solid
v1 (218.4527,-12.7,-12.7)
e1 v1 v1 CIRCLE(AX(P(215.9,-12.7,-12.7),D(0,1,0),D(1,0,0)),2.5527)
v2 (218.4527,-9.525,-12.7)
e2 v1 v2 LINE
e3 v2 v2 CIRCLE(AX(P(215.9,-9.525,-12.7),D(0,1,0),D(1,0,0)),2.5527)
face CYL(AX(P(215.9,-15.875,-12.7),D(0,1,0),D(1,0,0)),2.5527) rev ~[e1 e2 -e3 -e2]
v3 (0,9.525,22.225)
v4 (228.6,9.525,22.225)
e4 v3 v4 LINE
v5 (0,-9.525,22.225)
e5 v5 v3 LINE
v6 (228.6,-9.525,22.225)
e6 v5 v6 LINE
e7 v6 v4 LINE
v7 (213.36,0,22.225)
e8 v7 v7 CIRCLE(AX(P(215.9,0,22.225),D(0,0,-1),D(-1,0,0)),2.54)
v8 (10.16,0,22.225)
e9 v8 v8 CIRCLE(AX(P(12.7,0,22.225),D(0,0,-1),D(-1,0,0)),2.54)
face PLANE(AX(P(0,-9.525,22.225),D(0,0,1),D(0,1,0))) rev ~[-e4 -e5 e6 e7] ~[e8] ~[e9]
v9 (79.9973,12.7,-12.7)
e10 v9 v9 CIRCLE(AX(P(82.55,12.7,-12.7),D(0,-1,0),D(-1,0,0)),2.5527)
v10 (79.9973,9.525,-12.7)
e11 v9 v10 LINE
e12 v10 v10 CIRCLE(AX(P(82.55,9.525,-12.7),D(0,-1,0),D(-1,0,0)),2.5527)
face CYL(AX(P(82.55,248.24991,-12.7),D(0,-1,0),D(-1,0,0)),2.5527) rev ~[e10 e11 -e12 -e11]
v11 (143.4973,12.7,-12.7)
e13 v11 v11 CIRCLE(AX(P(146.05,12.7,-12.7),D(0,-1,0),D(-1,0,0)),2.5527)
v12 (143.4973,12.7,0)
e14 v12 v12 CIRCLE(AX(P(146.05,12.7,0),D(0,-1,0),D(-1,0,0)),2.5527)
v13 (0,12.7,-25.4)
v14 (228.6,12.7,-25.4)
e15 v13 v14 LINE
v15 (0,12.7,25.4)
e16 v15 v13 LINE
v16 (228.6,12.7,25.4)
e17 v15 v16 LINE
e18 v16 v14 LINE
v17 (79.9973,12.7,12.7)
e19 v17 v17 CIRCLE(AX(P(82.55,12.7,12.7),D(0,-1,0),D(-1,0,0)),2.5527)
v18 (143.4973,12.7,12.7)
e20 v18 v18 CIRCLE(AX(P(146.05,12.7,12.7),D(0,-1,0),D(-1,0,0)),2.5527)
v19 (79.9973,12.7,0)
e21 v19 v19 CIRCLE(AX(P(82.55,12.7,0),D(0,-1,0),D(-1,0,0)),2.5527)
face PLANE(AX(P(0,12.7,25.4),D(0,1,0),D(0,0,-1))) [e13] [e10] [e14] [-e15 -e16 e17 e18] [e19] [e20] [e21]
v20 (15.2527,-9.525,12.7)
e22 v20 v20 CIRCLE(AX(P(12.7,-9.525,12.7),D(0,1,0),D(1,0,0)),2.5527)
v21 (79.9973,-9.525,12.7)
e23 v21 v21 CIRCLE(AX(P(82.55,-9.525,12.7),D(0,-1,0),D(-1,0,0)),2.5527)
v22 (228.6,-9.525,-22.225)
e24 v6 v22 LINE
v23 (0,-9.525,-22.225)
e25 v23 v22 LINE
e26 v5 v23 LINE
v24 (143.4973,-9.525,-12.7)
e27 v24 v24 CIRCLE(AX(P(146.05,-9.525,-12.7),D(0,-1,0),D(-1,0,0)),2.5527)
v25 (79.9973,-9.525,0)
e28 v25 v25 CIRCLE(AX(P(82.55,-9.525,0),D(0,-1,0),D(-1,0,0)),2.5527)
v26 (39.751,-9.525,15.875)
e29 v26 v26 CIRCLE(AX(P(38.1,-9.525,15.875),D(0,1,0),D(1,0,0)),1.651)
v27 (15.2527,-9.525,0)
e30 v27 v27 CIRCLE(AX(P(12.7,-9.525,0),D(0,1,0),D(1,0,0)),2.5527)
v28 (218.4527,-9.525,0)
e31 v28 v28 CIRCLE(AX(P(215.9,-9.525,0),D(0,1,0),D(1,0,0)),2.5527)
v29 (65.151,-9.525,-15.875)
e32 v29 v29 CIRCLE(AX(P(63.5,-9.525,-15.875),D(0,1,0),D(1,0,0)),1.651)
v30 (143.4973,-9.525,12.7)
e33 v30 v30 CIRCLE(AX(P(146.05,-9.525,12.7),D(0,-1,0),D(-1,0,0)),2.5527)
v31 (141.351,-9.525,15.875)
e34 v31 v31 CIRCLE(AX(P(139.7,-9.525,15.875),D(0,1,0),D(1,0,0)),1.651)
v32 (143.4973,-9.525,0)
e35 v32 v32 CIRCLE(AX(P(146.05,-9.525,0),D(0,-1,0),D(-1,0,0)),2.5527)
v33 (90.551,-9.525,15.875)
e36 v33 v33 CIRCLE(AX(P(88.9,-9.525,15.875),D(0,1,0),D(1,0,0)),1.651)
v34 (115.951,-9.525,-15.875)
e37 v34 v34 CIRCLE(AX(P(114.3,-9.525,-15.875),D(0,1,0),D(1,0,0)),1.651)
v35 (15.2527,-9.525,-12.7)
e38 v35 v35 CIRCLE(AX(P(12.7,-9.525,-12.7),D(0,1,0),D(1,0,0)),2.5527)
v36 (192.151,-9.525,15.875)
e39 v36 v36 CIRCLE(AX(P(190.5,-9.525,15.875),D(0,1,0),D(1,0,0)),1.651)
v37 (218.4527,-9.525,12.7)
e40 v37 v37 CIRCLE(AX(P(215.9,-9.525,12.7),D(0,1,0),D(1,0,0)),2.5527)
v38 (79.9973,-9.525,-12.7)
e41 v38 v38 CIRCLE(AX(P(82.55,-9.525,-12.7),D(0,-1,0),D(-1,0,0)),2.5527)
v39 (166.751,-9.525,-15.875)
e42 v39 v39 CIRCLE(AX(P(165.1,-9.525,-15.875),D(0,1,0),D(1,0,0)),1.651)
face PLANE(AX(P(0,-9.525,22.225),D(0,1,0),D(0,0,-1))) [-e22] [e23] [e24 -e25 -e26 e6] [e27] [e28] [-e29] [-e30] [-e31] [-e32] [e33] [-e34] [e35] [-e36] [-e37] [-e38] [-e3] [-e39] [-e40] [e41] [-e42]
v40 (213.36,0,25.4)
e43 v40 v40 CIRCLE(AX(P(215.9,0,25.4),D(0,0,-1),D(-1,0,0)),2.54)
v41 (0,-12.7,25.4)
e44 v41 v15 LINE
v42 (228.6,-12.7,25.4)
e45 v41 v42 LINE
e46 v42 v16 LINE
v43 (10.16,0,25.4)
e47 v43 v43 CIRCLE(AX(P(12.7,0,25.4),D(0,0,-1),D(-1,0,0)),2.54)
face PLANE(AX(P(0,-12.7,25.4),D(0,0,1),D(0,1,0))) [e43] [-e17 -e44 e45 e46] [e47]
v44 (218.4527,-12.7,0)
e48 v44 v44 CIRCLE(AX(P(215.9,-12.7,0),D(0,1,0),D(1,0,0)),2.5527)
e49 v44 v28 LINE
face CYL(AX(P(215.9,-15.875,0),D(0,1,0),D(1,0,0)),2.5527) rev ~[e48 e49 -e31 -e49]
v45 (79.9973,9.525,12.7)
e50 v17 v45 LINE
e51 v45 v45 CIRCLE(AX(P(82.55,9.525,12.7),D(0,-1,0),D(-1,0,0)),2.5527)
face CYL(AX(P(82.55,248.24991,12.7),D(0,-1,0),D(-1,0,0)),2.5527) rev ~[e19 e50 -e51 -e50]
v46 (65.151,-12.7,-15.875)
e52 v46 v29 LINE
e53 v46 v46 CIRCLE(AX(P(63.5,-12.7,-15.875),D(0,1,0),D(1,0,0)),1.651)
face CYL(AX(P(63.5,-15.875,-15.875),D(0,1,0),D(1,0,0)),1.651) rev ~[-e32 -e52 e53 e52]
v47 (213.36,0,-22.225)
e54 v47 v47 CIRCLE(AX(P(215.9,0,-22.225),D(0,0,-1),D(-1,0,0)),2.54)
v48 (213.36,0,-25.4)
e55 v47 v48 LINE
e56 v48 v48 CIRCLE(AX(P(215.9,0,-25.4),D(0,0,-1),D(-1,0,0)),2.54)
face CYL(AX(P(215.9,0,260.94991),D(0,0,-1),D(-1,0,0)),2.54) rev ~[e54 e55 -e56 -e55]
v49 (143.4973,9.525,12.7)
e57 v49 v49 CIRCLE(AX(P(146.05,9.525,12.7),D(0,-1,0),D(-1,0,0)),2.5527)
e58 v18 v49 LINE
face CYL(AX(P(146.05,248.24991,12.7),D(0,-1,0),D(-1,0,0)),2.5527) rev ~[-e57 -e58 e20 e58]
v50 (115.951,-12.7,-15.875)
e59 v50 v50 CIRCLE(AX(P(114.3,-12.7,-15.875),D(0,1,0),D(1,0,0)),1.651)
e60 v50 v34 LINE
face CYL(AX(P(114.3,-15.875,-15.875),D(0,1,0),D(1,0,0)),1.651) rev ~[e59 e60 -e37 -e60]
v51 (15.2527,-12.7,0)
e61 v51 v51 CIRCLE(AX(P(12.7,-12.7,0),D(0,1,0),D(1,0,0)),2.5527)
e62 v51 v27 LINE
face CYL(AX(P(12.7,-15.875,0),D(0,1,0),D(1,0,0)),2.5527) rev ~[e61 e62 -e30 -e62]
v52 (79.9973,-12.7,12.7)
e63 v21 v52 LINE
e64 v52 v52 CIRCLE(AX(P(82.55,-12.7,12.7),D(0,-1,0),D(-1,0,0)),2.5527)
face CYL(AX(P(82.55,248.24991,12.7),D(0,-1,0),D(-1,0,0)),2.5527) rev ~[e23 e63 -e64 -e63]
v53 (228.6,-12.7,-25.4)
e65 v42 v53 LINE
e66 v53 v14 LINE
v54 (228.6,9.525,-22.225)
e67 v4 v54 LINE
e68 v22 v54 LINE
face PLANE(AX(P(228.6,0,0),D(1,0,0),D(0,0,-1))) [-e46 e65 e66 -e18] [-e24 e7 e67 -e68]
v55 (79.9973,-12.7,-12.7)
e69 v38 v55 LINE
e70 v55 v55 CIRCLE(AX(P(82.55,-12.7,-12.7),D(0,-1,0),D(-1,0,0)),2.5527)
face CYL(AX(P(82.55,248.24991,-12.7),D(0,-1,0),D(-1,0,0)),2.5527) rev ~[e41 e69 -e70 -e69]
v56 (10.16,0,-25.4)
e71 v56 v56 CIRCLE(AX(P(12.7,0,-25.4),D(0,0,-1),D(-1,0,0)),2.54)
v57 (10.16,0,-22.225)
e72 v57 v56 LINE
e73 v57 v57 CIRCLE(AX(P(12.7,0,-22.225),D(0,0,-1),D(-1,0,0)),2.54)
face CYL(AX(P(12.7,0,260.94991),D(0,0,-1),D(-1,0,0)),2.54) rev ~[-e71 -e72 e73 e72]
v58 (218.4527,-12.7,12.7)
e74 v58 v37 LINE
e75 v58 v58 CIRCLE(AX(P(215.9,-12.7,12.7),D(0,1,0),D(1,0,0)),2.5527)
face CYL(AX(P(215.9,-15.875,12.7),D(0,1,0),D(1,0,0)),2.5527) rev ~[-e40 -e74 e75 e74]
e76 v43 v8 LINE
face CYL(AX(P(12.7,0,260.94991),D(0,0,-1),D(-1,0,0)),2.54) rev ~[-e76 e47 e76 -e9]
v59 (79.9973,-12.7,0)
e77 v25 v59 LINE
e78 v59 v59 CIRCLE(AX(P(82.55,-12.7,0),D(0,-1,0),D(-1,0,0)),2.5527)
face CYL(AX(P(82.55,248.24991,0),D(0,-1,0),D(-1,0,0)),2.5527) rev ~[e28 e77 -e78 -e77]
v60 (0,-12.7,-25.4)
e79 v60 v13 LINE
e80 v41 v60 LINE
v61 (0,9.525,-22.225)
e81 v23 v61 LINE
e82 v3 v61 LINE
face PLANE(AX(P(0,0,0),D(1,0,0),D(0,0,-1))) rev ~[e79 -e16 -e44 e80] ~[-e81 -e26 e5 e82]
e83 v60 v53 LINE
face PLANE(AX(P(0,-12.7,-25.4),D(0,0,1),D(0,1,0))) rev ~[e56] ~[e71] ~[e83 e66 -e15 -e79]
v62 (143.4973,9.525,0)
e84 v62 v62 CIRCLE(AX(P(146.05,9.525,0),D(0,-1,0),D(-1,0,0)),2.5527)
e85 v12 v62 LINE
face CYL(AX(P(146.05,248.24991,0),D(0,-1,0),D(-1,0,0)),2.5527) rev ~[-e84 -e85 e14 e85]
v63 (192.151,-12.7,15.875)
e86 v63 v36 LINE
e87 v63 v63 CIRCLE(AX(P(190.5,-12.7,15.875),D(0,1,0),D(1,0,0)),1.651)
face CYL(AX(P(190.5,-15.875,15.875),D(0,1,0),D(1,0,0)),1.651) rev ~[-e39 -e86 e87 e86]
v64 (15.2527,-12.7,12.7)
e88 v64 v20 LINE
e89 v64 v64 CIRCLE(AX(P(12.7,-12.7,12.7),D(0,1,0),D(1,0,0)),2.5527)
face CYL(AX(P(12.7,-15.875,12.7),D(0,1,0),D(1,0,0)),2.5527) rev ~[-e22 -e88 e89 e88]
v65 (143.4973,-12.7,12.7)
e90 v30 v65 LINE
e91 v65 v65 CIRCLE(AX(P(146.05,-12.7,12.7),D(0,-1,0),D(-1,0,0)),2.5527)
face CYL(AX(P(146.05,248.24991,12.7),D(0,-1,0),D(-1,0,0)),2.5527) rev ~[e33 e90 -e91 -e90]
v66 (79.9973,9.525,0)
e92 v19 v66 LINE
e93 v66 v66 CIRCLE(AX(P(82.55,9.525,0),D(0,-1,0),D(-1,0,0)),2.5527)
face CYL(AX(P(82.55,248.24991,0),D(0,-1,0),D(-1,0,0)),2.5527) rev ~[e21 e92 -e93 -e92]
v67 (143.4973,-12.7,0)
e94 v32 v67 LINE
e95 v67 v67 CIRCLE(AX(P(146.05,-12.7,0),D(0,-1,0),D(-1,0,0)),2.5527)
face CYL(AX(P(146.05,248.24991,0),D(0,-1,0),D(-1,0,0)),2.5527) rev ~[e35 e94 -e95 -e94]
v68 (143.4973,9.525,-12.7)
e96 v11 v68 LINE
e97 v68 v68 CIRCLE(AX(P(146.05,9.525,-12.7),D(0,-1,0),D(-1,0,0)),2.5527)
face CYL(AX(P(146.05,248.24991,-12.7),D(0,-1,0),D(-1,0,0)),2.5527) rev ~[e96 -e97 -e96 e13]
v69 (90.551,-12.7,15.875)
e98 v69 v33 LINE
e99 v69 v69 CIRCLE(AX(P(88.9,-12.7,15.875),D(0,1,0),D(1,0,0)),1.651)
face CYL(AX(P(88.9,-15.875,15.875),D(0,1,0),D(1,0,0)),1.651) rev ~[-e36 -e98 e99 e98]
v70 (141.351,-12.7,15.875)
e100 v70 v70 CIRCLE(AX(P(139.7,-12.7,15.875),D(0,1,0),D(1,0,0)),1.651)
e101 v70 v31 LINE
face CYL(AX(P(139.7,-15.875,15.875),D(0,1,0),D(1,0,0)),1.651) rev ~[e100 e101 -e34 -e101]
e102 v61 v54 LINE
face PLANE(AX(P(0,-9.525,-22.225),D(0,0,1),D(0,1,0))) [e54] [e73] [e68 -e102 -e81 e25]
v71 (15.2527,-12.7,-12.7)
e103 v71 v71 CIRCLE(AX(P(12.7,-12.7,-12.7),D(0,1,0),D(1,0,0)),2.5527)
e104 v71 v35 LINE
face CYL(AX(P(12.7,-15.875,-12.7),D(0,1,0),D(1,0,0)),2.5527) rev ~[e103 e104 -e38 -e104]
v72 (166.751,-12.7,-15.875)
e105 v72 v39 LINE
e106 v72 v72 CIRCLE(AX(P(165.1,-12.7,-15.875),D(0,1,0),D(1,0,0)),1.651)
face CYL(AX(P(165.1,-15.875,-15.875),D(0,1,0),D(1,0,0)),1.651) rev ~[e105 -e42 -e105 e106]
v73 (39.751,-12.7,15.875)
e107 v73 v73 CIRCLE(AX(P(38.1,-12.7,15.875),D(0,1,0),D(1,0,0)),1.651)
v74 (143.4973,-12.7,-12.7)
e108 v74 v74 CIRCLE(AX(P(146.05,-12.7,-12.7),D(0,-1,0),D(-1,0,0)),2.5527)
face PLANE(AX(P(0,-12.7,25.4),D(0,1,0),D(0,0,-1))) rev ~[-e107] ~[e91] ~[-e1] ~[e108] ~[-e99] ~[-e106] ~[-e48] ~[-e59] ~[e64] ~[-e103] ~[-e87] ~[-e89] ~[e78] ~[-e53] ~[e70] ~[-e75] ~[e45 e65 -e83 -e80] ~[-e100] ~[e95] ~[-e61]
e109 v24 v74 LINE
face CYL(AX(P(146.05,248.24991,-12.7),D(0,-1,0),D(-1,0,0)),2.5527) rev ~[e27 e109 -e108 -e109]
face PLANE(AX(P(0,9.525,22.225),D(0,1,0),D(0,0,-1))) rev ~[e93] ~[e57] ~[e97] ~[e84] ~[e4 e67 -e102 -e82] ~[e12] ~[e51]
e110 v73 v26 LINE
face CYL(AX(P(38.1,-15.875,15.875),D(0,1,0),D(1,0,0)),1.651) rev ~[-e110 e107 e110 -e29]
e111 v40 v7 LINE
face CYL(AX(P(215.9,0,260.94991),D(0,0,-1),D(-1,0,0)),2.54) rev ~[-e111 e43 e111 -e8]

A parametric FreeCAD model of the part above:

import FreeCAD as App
import Part
import Sketcher

V = App.Vector
Q = App.Units.Quantity

doc = App.newDocument("Part")
params = doc.addObject("Spreadsheet::Sheet", "Params")
for row, (alias, value) in enumerate([
    ("sketch1_width", "1 in"),
    ("sketch1_height", "2 in"),
    ("sketch1_width2", "0.75 in"),
    ("sketch1_height2", "1.75 in"),
    ("pad1_length", "9 in"),
    ("sketch2_diameter", "0.13 in"),
    ("hole_diameter", "0.13 in"),
    ("hole_depth", "0.125 in"),
    ("sketch3_diameter", "0.201 in"),
    ("hole2_diameter", "0.201 in"),
    ("sketch4_diameter", "0.2 in"),
    ("hole3_diameter", "0.2 in"),
    ("sketch5_diameter", "0.201 in"),
    ("hole4_diameter", "0.201 in"),
    ("hole4_depth", "0.125 in"),
], start=1):
    params.set(f"A{row}", alias)
    params.set(f"B{row}", "=" + value)
    params.setAlias(f"B{row}", alias)

body = doc.addObject("PartDesign::Body", "Body")

sketch1 = body.newObject("Sketcher::SketchObject", "Sketch")
sketch1.AttachmentSupport = (doc.getObject("YZ_Plane"), [""])
sketch1.MapMode = "FlatFace"
sketch1.addGeometry([
    Part.LineSegment(V(12.7, 25.4, 0), V(-12.7, 25.4, 0)),
    Part.LineSegment(V(-12.7, 25.4, 0), V(-12.7, -25.4, 0)),
    Part.LineSegment(V(-12.7, -25.4, 0), V(12.7, -25.4, 0)),
    Part.LineSegment(V(12.7, -25.4, 0), V(12.7, 25.4, 0)),
    Part.LineSegment(V(-9.525, -22.225, 0), V(-9.525, 22.225, 0)),
    Part.LineSegment(V(-9.525, 22.225, 0), V(9.525, 22.225, 0)),
    Part.LineSegment(V(9.525, 22.225, 0), V(9.525, -22.225, 0)),
    Part.LineSegment(V(9.525, -22.225, 0), V(-9.525, -22.225, 0)),
], False)
sketch1.addConstraint([
    Sketcher.Constraint("Coincident", 0, 2, 1, 1),
    Sketcher.Constraint("Coincident", 1, 2, 2, 1),
    Sketcher.Constraint("Coincident", 2, 2, 3, 1),
    Sketcher.Constraint("Coincident", 3, 2, 0, 1),
    Sketcher.Constraint("Coincident", 4, 2, 5, 1),
    Sketcher.Constraint("Coincident", 5, 2, 6, 1),
    Sketcher.Constraint("Coincident", 6, 2, 7, 1),
    Sketcher.Constraint("Coincident", 7, 2, 4, 1),
    Sketcher.Constraint("Horizontal", 0),
    Sketcher.Constraint("Vertical", 1),
    Sketcher.Constraint("Horizontal", 2),
    Sketcher.Constraint("Vertical", 3),
    Sketcher.Constraint("Vertical", 4),
    Sketcher.Constraint("Horizontal", 5),
    Sketcher.Constraint("Vertical", 6),
    Sketcher.Constraint("Horizontal", 7),
    Sketcher.Constraint("Symmetric", 0, 2, 2, 2, -1, 1),
    Sketcher.Constraint("Symmetric", 4, 2, 6, 2, -1, 1),
    Sketcher.Constraint("DistanceX", 0, 2, 0, 1, Q("1 in")),
    Sketcher.Constraint("DistanceY", 1, 2, 1, 1, Q("2 in")),
    Sketcher.Constraint("DistanceX", 5, 1, 5, 2, Q("0.75 in")),
    Sketcher.Constraint("DistanceY", 4, 1, 4, 2, Q("1.75 in")),
])
sketch1.setExpression("Constraints[18]", "Params.sketch1_width")
sketch1.setExpression("Constraints[19]", "Params.sketch1_height")
sketch1.setExpression("Constraints[20]", "Params.sketch1_width2")
sketch1.setExpression("Constraints[21]", "Params.sketch1_height2")
pad1 = body.newObject("PartDesign::Pad", "Pad")
pad1.Profile = sketch1
pad1.setExpression("Length", "Params.pad1_length")

sketch2 = body.newObject("Sketcher::SketchObject", "Sketch001")
sketch2.AttachmentSupport = (doc.getObject("XZ_Plane"), [""])
sketch2.MapMode = "FlatFace"
sketch2.AttachmentOffset = App.Placement(V(0, 0, 0.5 * 25.4), App.Rotation())
sketch2.addGeometry([
    Part.Circle(V(190.5, 15.875, 0), V(0, 0, 1), 1.651),
    Part.Circle(V(38.1, 15.875, 0), V(0, 0, 1), 1.651),
    Part.Circle(V(63.5, -15.875, 0), V(0, 0, 1), 1.651),
    Part.Circle(V(88.9, 15.875, 0), V(0, 0, 1), 1.651),
    Part.Circle(V(114.3, -15.875, 0), V(0, 0, 1), 1.651),
    Part.Circle(V(139.7, 15.875, 0), V(0, 0, 1), 1.651),
    Part.Circle(V(165.1, -15.875, 0), V(0, 0, 1), 1.651),
], False)
sketch2.addConstraint([
    Sketcher.Constraint("Equal", 0, 1),
    Sketcher.Constraint("Equal", 1, 2),
    Sketcher.Constraint("Equal", 2, 3),
    Sketcher.Constraint("Equal", 3, 4),
    Sketcher.Constraint("Equal", 4, 5),
    Sketcher.Constraint("Equal", 5, 6),
    Sketcher.Constraint("Horizontal", 0, 3, 1, 3),
    Sketcher.Constraint("Horizontal", 1, 3, 3, 3),
    Sketcher.Constraint("Horizontal", 2, 3, 4, 3),
    Sketcher.Constraint("Horizontal", 3, 3, 5, 3),
    Sketcher.Constraint("Horizontal", 4, 3, 6, 3),
    Sketcher.Constraint("Diameter", 0, Q("0.13 in")),
    Sketcher.Constraint("DistanceX", 1, 3, 0, 3, Q("6 in")),
    Sketcher.Constraint("DistanceX", 1, 3, 2, 3, Q("1 in")),
    Sketcher.Constraint("DistanceX", 2, 3, 3, 3, Q("1 in")),
    Sketcher.Constraint("DistanceX", 3, 3, 4, 3, Q("1 in")),
    Sketcher.Constraint("DistanceX", 4, 3, 5, 3, Q("1 in")),
    Sketcher.Constraint("DistanceX", 6, 3, 0, 3, Q("1 in")),
    Sketcher.Constraint("DistanceX", -1, 1, 0, 3, Q("7.5 in")),
    Sketcher.Constraint("DistanceY", 2, 3, 1, 3, Q("1.25 in")),
    Sketcher.Constraint("DistanceY", -1, 1, 0, 3, Q("0.625 in")),
])
sketch2.setExpression("Constraints[11]", "Params.sketch2_diameter")
doc.recompute()
hole = body.newObject("PartDesign::Hole", "Hole")
hole.Profile = sketch2
hole.ThreadType = "None"
hole.setExpression("Diameter", "Params.hole_diameter")
hole.DepthType = "Dimension"
hole.setExpression("Depth", "Params.hole_depth")
hole.DrillPoint = "Flat"

sketch3 = body.newObject("Sketcher::SketchObject", "Sketch002")
sketch3.AttachmentSupport = (doc.getObject("XZ_Plane"), [""])
sketch3.MapMode = "FlatFace"
sketch3.AttachmentOffset = App.Placement(V(0, 0, -0.5 * 25.4), App.Rotation())
sketch3.addGeometry([
    Part.Circle(V(82.55, -12.7, 0), V(0, 0, 1), 2.5527),
    Part.Circle(V(82.55, 0, 0), V(0, 0, 1), 2.5527),
    Part.Circle(V(82.55, 12.7, 0), V(0, 0, 1), 2.5527),
    Part.Circle(V(146.05, 12.7, 0), V(0, 0, 1), 2.5527),
    Part.Circle(V(146.05, 0, 0), V(0, 0, 1), 2.5527),
    Part.Circle(V(146.05, -12.7, 0), V(0, 0, 1), 2.5527),
], False)
sketch3.addConstraint([
    Sketcher.Constraint("Equal", 0, 1),
    Sketcher.Constraint("Equal", 1, 2),
    Sketcher.Constraint("Equal", 2, 3),
    Sketcher.Constraint("Equal", 3, 4),
    Sketcher.Constraint("Equal", 4, 5),
    Sketcher.Constraint("Symmetric", 0, 3, 2, 3, -1),
    Sketcher.Constraint("Symmetric", 3, 3, 5, 3, -1),
    Sketcher.Constraint("PointOnObject", 1, 3, -1),
    Sketcher.Constraint("PointOnObject", 4, 3, -1),
    Sketcher.Constraint("Horizontal", 2, 3, 3, 3),
    Sketcher.Constraint("Vertical", 0, 3, 1, 3),
    Sketcher.Constraint("Vertical", 3, 3, 4, 3),
    Sketcher.Constraint("Diameter", 0, Q("0.201 in")),
    Sketcher.Constraint("DistanceY", 0, 3, 2, 3, Q("1 in")),
    Sketcher.Constraint("DistanceX", 2, 3, 3, 3, Q("2.5 in")),
    Sketcher.Constraint("DistanceX", -1, 1, 0, 3, Q("3.25 in")),
])
sketch3.setExpression("Constraints[12]", "Params.sketch3_diameter")
doc.recompute()
hole2 = body.newObject("PartDesign::Hole", "Hole001")
hole2.Profile = sketch3
hole2.ThreadType = "None"
hole2.setExpression("Diameter", "Params.hole2_diameter")
hole2.DepthType = "ThroughAll"
hole2.Reversed = True

sketch4 = body.newObject("Sketcher::SketchObject", "Sketch003")
sketch4.AttachmentSupport = (doc.getObject("XY_Plane"), [""])
sketch4.MapMode = "FlatFace"
sketch4.AttachmentOffset = App.Placement(V(0, 0, 1 * 25.4), App.Rotation())
sketch4.addGeometry([
    Part.Circle(V(12.7, 0, 0), V(0, 0, 1), 2.54),
    Part.Circle(V(215.9, 0, 0), V(0, 0, 1), 2.54),
], False)
sketch4.addConstraint([
    Sketcher.Constraint("Equal", 0, 1),
    Sketcher.Constraint("PointOnObject", 0, 3, -1),
    Sketcher.Constraint("PointOnObject", 1, 3, -1),
    Sketcher.Constraint("Diameter", 0, Q("0.2 in")),
    Sketcher.Constraint("DistanceX", 0, 3, 1, 3, Q("8 in")),
    Sketcher.Constraint("DistanceX", -1, 1, 0, 3, Q("0.5 in")),
])
sketch4.setExpression("Constraints[3]", "Params.sketch4_diameter")
doc.recompute()
hole3 = body.newObject("PartDesign::Hole", "Hole002")
hole3.Profile = sketch4
hole3.ThreadType = "None"
hole3.setExpression("Diameter", "Params.hole3_diameter")
hole3.DepthType = "ThroughAll"

sketch5 = body.newObject("Sketcher::SketchObject", "Sketch004")
sketch5.AttachmentSupport = (doc.getObject("XZ_Plane"), [""])
sketch5.MapMode = "FlatFace"
sketch5.AttachmentOffset = App.Placement(V(0, 0, 0.5 * 25.4), App.Rotation())
sketch5.addGeometry([
    Part.Circle(V(215.9, -12.7, 0), V(0, 0, 1), 2.5527),
    Part.Circle(V(215.9, 0, 0), V(0, 0, 1), 2.5527),
    Part.Circle(V(215.9, 12.7, 0), V(0, 0, 1), 2.5527),
    Part.Circle(V(12.7, 12.7, 0), V(0, 0, 1), 2.5527),
    Part.Circle(V(12.7, 0, 0), V(0, 0, 1), 2.5527),
    Part.Circle(V(12.7, -12.7, 0), V(0, 0, 1), 2.5527),
], False)
sketch5.addConstraint([
    Sketcher.Constraint("Equal", 0, 1),
    Sketcher.Constraint("Equal", 1, 2),
    Sketcher.Constraint("Equal", 2, 3),
    Sketcher.Constraint("Equal", 3, 4),
    Sketcher.Constraint("Equal", 4, 5),
    Sketcher.Constraint("Symmetric", 0, 3, 2, 3, -1),
    Sketcher.Constraint("Symmetric", 3, 3, 5, 3, -1),
    Sketcher.Constraint("PointOnObject", 1, 3, -1),
    Sketcher.Constraint("PointOnObject", 4, 3, -1),
    Sketcher.Constraint("Horizontal", 2, 3, 3, 3),
    Sketcher.Constraint("Vertical", 0, 3, 1, 3),
    Sketcher.Constraint("Vertical", 3, 3, 4, 3),
    Sketcher.Constraint("Diameter", 0, Q("0.201 in")),
    Sketcher.Constraint("DistanceY", 0, 3, 2, 3, Q("1 in")),
    Sketcher.Constraint("DistanceX", 3, 3, 2, 3, Q("8 in")),
    Sketcher.Constraint("DistanceX", -1, 1, 0, 3, Q("8.5 in")),
])
sketch5.setExpression("Constraints[12]", "Params.sketch5_diameter")
doc.recompute()
hole4 = body.newObject("PartDesign::Hole", "Hole003")
hole4.Profile = sketch5
hole4.ThreadType = "None"
hole4.setExpression("Diameter", "Params.hole4_diameter")
hole4.DepthType = "Dimension"
hole4.setExpression("Depth", "Params.hole4_depth")
hole4.DrillPoint = "Flat"

doc.recompute()
